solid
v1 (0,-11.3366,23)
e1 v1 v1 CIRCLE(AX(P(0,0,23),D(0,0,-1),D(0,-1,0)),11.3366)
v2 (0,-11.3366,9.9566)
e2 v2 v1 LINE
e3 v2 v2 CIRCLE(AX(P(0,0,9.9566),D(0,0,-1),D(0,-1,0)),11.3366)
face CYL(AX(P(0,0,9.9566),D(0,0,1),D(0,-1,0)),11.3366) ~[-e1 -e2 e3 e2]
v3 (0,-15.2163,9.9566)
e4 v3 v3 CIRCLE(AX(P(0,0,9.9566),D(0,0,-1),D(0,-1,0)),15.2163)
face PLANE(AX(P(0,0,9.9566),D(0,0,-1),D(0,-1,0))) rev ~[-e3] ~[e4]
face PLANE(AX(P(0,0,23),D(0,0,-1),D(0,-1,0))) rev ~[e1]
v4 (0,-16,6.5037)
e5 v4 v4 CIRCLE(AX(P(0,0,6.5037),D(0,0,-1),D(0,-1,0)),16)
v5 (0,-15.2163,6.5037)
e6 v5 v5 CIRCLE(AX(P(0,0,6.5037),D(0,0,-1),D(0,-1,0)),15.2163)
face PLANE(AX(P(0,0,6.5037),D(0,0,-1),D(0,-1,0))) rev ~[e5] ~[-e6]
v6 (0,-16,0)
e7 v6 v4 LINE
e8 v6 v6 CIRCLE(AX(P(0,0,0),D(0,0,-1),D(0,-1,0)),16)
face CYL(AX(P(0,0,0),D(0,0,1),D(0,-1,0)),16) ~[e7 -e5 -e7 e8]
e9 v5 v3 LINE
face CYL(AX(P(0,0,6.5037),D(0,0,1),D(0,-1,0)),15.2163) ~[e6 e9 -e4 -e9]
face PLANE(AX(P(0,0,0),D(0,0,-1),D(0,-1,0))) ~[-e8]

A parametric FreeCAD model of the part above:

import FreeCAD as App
import Part
import Sketcher
from FreeCAD import Vector

doc = App.newDocument("Part")
body = doc.addObject("PartDesign::Body", "Body")

# Sketch on YZ plane
sketch1 = body.newObject("Sketcher::SketchObject", "Sketch")
sketch1.AttachmentSupport = (doc.getObject("YZ_Plane"), [""])
sketch1.MapMode = "FlatFace"
sketch1.addGeometry([
    Part.LineSegment(Vector(-16, 0, 0), Vector(0, 0, 0)),  # 0
    Part.LineSegment(Vector(0, 0, 0), Vector(0, 23, 0)),  # 1
    Part.LineSegment(Vector(0, 23, 0), Vector(-11.3366, 23, 0)),  # 2
    Part.LineSegment(Vector(-11.3366, 23, 0), Vector(-11.3366, 9.9566, 0)),  # 3
    Part.LineSegment(Vector(-11.3366, 9.9566, 0), Vector(-15.2163, 9.9566, 0)),  # 4
    Part.LineSegment(Vector(-15.2163, 9.9566, 0), Vector(-15.2163, 6.5037, 0)),  # 5
    Part.LineSegment(Vector(-15.2163, 6.5037, 0), Vector(-16, 6.5037, 0)),  # 6
    Part.LineSegment(Vector(-16, 6.5037, 0), Vector(-16, 0, 0)),  # 7
], False)
sketch1.addConstraint([
    Sketcher.Constraint("Coincident", 0, 2, 1, 1),
    Sketcher.Constraint("Coincident", 1, 2, 2, 1),
    Sketcher.Constraint("Coincident", 2, 2, 3, 1),
    Sketcher.Constraint("Coincident", 3, 2, 4, 1),
    Sketcher.Constraint("Coincident", 4, 2, 5, 1),
    Sketcher.Constraint("Coincident", 5, 2, 6, 1),
    Sketcher.Constraint("Coincident", 6, 2, 7, 1),
    Sketcher.Constraint("Coincident", 7, 2, 0, 1),
    Sketcher.Constraint("Horizontal", 0),
    Sketcher.Constraint("Vertical", 1),
    Sketcher.Constraint("Horizontal", 2),
    Sketcher.Constraint("Vertical", 3),
    Sketcher.Constraint("Horizontal", 4),
    Sketcher.Constraint("Vertical", 5),
    Sketcher.Constraint("Horizontal", 6),
    Sketcher.Constraint("Vertical", 7),
    Sketcher.Constraint("Coincident", 0, 2, -1, 1),
    Sketcher.Constraint("DistanceX", 0, 1, 0, 2, 16.0),
    Sketcher.Constraint("DistanceY", 1, 1, 1, 2, 23.0),
    Sketcher.Constraint("DistanceX", 4, 2, -1, 1, 15.2163),
    Sketcher.Constraint("DistanceY", 5, 2, 5, 1, 3.453),
    Sketcher.Constraint("DistanceX", 2, 2, 2, 1, 11.3366),
    Sketcher.Constraint("DistanceY", 3, 2, 3, 1, 13.0434),
])
revolution = body.newObject("PartDesign::Revolution", "Revolution")
revolution.Profile = sketch1
revolution.ReferenceAxis = (sketch1, ["V_Axis"])
revolution.Angle = 360

doc.recompute()
